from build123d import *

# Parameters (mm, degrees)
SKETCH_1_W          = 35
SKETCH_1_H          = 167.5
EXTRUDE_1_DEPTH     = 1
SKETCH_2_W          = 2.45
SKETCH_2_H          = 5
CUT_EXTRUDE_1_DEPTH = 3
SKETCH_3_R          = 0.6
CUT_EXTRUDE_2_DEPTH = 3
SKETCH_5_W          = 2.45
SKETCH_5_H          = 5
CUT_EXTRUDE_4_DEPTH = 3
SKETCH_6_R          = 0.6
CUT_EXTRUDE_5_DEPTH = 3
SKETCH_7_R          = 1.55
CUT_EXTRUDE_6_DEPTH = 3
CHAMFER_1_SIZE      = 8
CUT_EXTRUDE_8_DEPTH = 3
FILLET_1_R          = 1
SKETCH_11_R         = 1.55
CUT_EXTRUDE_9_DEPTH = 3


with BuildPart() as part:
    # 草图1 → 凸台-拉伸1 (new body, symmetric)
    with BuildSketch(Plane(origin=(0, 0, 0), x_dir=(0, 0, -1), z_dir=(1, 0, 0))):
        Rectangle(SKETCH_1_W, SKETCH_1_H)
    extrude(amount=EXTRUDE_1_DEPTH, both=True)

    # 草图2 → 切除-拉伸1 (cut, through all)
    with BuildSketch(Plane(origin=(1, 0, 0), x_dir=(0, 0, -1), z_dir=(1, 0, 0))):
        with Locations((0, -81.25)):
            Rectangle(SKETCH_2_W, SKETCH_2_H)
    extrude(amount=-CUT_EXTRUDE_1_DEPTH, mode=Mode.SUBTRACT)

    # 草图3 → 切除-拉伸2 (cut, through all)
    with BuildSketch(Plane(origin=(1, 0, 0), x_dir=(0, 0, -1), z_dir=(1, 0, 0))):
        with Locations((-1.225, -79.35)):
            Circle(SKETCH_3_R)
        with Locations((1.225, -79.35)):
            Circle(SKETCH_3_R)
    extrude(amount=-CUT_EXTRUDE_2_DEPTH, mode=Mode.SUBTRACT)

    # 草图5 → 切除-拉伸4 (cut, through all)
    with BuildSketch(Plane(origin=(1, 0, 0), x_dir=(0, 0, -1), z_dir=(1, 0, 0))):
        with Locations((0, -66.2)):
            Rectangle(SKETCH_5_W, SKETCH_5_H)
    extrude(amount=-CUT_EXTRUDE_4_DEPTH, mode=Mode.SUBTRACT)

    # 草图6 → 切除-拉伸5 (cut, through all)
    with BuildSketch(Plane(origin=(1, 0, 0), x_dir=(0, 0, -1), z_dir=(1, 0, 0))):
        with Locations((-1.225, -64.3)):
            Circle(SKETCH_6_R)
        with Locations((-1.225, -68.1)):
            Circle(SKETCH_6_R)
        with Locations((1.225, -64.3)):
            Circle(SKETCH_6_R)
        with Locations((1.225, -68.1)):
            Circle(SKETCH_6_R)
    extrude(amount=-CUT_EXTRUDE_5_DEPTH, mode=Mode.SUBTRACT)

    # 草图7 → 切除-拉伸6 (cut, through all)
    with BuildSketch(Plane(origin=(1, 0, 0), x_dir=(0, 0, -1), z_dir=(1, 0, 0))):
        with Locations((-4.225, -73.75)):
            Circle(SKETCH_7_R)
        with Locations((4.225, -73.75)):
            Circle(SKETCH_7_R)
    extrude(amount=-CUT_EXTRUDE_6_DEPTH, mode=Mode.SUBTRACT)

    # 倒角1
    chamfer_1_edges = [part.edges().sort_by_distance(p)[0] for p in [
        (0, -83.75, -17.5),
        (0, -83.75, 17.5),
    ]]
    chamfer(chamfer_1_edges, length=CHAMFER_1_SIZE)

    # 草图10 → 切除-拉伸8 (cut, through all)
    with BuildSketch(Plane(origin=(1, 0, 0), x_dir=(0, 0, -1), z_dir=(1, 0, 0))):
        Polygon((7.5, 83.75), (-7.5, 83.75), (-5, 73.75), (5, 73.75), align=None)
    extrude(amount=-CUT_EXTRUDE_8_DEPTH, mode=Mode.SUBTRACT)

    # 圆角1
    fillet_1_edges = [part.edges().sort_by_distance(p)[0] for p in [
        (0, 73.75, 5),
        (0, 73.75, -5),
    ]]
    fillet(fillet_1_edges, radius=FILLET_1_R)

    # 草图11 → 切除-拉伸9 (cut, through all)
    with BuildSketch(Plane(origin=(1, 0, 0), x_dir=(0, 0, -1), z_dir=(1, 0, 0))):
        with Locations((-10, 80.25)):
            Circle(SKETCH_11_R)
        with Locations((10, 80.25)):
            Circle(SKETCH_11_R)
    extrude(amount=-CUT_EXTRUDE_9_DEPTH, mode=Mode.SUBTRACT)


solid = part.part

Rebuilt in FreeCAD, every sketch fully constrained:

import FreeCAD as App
import Part
import Sketcher

V = App.Vector
Q = App.Units.Quantity


def edges_at(feature, points):
    """Names of the edges that pass closest to the given points."""
    edges = feature.Shape.Edges
    near = lambda p: min(range(len(edges)), key=lambda i: edges[i].distToShape(Part.Vertex(*p))[0])
    return sorted({f"Edge{near(p) + 1}" for p in points})

doc = App.newDocument("Part")
body = doc.addObject("PartDesign::Body", "Body")

# Sketch on YZ plane
sketch1 = body.newObject("Sketcher::SketchObject", "Sketch")
sketch1.AttachmentSupport = (doc.getObject("YZ_Plane"), [""])
sketch1.MapMode = "FlatFace"
sketch1.addGeometry([
    Part.LineSegment(V(83.75, 17.5, 0), V(-83.75, 17.5, 0)),
    Part.LineSegment(V(-83.75, 17.5, 0), V(-83.75, -17.5, 0)),
    Part.LineSegment(V(-83.75, -17.5, 0), V(83.75, -17.5, 0)),
    Part.LineSegment(V(83.75, -17.5, 0), V(83.75, 17.5, 0)),
], False)
sketch1.addConstraint([
    Sketcher.Constraint("Coincident", 0, 2, 1, 1),
    Sketcher.Constraint("Coincident", 1, 2, 2, 1),
    Sketcher.Constraint("Coincident", 2, 2, 3, 1),
    Sketcher.Constraint("Coincident", 3, 2, 0, 1),
    Sketcher.Constraint("Horizontal", 0),
    Sketcher.Constraint("Vertical", 1),
    Sketcher.Constraint("Horizontal", 2),
    Sketcher.Constraint("Vertical", 3),
    Sketcher.Constraint("Symmetric", 0, 2, 2, 2, -1, 1),
    Sketcher.Constraint("DistanceY", 1, 2, 1, 1, Q("35 mm")),
    Sketcher.Constraint("DistanceX", 0, 2, 0, 1, Q("167.5 mm")),
])
pad1 = body.newObject("PartDesign::Pad", "Pad")
pad1.Profile = sketch1
pad1.Length = 2
pad1.Midplane = True

# Sketch on YZ plane
sketch2 = body.newObject("Sketcher::SketchObject", "Sketch001")
sketch2.AttachmentSupport = (doc.getObject("YZ_Plane"), [""])
sketch2.MapMode = "FlatFace"
sketch2.AttachmentOffset = App.Placement(V(0, 0, 1), App.Rotation())
sketch2.addGeometry([
    Part.LineSegment(V(-78.75, 1.225, 0), V(-83.75, 1.225, 0)),
    Part.LineSegment(V(-83.75, 1.225, 0), V(-83.75, -1.225, 0)),
    Part.LineSegment(V(-83.75, -1.225, 0), V(-78.75, -1.225, 0)),
    Part.LineSegment(V(-78.75, -1.225, 0), V(-78.75, 1.225, 0)),
], False)
sketch2.addConstraint([
    Sketcher.Constraint("Coincident", 0, 2, 1, 1),
    Sketcher.Constraint("Coincident", 1, 2, 2, 1),
    Sketcher.Constraint("Coincident", 2, 2, 3, 1),
    Sketcher.Constraint("Coincident", 3, 2, 0, 1),
    Sketcher.Constraint("Horizontal", 0),
    Sketcher.Constraint("Vertical", 1),
    Sketcher.Constraint("Horizontal", 2),
    Sketcher.Constraint("Vertical", 3),
    Sketcher.Constraint("DistanceX", 0, 2, 0, 1, Q("5 mm")),
    Sketcher.Constraint("DistanceY", 1, 2, 1, 1, Q("2.45 mm")),
    Sketcher.Constraint("DistanceX", 0, 2, -1, 1, Q("83.75 mm")),
    Sketcher.Constraint("DistanceY", -1, 1, 0, 2, Q("1.225 mm")),
])
pocket1 = body.newObject("PartDesign::Pocket", "Pocket")
pocket1.Profile = sketch2
pocket1.Type = "ThroughAll"

# Sketch on YZ plane
sketch3 = body.newObject("Sketcher::SketchObject", "Sketch002")
sketch3.AttachmentSupport = (doc.getObject("YZ_Plane"), [""])
sketch3.MapMode = "FlatFace"
sketch3.AttachmentOffset = App.Placement(V(0, 0, 1), App.Rotation())
sketch3.addGeometry([
    Part.Circle(V(-79.35, 1.225, 0), V(0, 0, 1), 0.6),
    Part.Circle(V(-79.35, -1.225, 0), V(0, 0, 1), 0.6),
], False)
sketch3.addConstraint([
    Sketcher.Constraint("Equal", 0, 1),
    Sketcher.Constraint("Symmetric", 0, 3, 1, 3, -1),
    Sketcher.Constraint("Diameter", 0, Q("1.2 mm")),
    Sketcher.Constraint("DistanceX", 0, 3, -1, 1, Q("79.35 mm")),
    Sketcher.Constraint("DistanceY", 1, 3, 0, 3, Q("2.45 mm")),
])
pocket2 = body.newObject("PartDesign::Pocket", "Pocket001")
pocket2.Profile = sketch3
pocket2.Type = "ThroughAll"

# Sketch on YZ plane
sketch4 = body.newObject("Sketcher::SketchObject", "Sketch003")
sketch4.AttachmentSupport = (doc.getObject("YZ_Plane"), [""])
sketch4.MapMode = "FlatFace"
sketch4.AttachmentOffset = App.Placement(V(0, 0, 1), App.Rotation())
sketch4.addGeometry([
    Part.LineSegment(V(-63.7, 1.225, 0), V(-68.7, 1.225, 0)),
    Part.LineSegment(V(-68.7, 1.225, 0), V(-68.7, -1.225, 0)),
    Part.LineSegment(V(-68.7, -1.225, 0), V(-63.7, -1.225, 0)),
    Part.LineSegment(V(-63.7, -1.225, 0), V(-63.7, 1.225, 0)),
], False)
sketch4.addConstraint([
    Sketcher.Constraint("Coincident", 0, 2, 1, 1),
    Sketcher.Constraint("Coincident", 1, 2, 2, 1),
    Sketcher.Constraint("Coincident", 2, 2, 3, 1),
    Sketcher.Constraint("Coincident", 3, 2, 0, 1),
    Sketcher.Constraint("Horizontal", 0),
    Sketcher.Constraint("Vertical", 1),
    Sketcher.Constraint("Horizontal", 2),
    Sketcher.Constraint("Vertical", 3),
    Sketcher.Constraint("DistanceX", 0, 2, 0, 1, Q("5 mm")),
    Sketcher.Constraint("DistanceY", 1, 2, 1, 1, Q("2.45 mm")),
    Sketcher.Constraint("DistanceX", 0, 2, -1, 1, Q("68.7 mm")),
    Sketcher.Constraint("DistanceY", -1, 1, 0, 2, Q("1.225 mm")),
])
pocket3 = body.newObject("PartDesign::Pocket", "Pocket002")
pocket3.Profile = sketch4
pocket3.Type = "ThroughAll"

# Sketch on YZ plane
sketch5 = body.newObject("Sketcher::SketchObject", "Sketch004")
sketch5.AttachmentSupport = (doc.getObject("YZ_Plane"), [""])
sketch5.MapMode = "FlatFace"
sketch5.AttachmentOffset = App.Placement(V(0, 0, 1), App.Rotation())
sketch5.addGeometry([
    Part.Circle(V(-64.3, 1.225, 0), V(0, 0, 1), 0.6),
    Part.Circle(V(-68.1, 1.225, 0), V(0, 0, 1), 0.6),
    Part.Circle(V(-64.3, -1.225, 0), V(0, 0, 1), 0.6),
    Part.Circle(V(-68.1, -1.225, 0), V(0, 0, 1), 0.6),
], False)
sketch5.addConstraint([
    Sketcher.Constraint("Equal", 0, 1),
    Sketcher.Constraint("Equal", 1, 2),
    Sketcher.Constraint("Equal", 2, 3),
    Sketcher.Constraint("Symmetric", 0, 3, 2, 3, -1),
    Sketcher.Constraint("Symmetric", 1, 3, 3, 3, -1),
    Sketcher.Constraint("Horizontal", 0, 3, 1, 3),
    Sketcher.Constraint("Diameter", 0, Q("1.2 mm")),
    Sketcher.Constraint("DistanceX", 0, 3, -1, 1, Q("64.3 mm")),
    Sketcher.Constraint("DistanceX", 1, 3, -1, 1, Q("68.1 mm")),
    Sketcher.Constraint("DistanceY", 2, 3, 0, 3, Q("2.45 mm")),
])
pocket4 = body.newObject("PartDesign::Pocket", "Pocket003")
pocket4.Profile = sketch5
pocket4.Type = "ThroughAll"

# Sketch on YZ plane
sketch6 = body.newObject("Sketcher::SketchObject", "Sketch005")
sketch6.AttachmentSupport = (doc.getObject("YZ_Plane"), [""])
sketch6.MapMode = "FlatFace"
sketch6.AttachmentOffset = App.Placement(V(0, 0, 1), App.Rotation())
sketch6.addGeometry([
    Part.Circle(V(-73.75, 4.225, 0), V(0, 0, 1), 1.55),
    Part.Circle(V(-73.75, -4.225, 0), V(0, 0, 1), 1.55),
], False)
sketch6.addConstraint([
    Sketcher.Constraint("Equal", 0, 1),
    Sketcher.Constraint("Symmetric", 0, 3, 1, 3, -1),
    Sketcher.Constraint("Diameter", 0, Q("3.1 mm")),
    Sketcher.Constraint("DistanceX", 0, 3, -1, 1, Q("73.75 mm")),
    Sketcher.Constraint("DistanceY", 1, 3, 0, 3, Q("8.45 mm")),
])
pocket5 = body.newObject("PartDesign::Pocket", "Pocket004")
pocket5.Profile = sketch6
pocket5.Type = "ThroughAll"
doc.recompute()

chamfer = body.newObject("PartDesign::Chamfer", "Chamfer")
chamfer.Base = (pocket5, edges_at(pocket5, [(0, -83.75, -17.5), (0, -83.75, 17.5)]))
chamfer.Size = 8

# Sketch on YZ plane
sketch7 = body.newObject("Sketcher::SketchObject", "Sketch006")
sketch7.AttachmentSupport = (doc.getObject("YZ_Plane"), [""])
sketch7.MapMode = "FlatFace"
sketch7.AttachmentOffset = App.Placement(V(0, 0, 1), App.Rotation())
sketch7.addGeometry([
    Part.LineSegment(V(83.75, -7.5, 0), V(83.75, 7.5, 0)),
    Part.LineSegment(V(83.75, 7.5, 0), V(73.75, 5, 0)),
    Part.LineSegment(V(73.75, 5, 0), V(73.75, -5, 0)),
    Part.LineSegment(V(73.75, -5, 0), V(83.75, -7.5, 0)),
], False)
sketch7.addConstraint([
    Sketcher.Constraint("Coincident", 0, 2, 1, 1),
    Sketcher.Constraint("Coincident", 1, 2, 2, 1),
    Sketcher.Constraint("Coincident", 2, 2, 3, 1),
    Sketcher.Constraint("Coincident", 3, 2, 0, 1),
    Sketcher.Constraint("Vertical", 0),
    Sketcher.Constraint("Vertical", 2),
    Sketcher.Constraint("Equal", 1, 3),
    Sketcher.Constraint("DistanceY", 0, 1, 0, 2, Q("15 mm")),
    Sketcher.Constraint("DistanceY", 2, 2, 2, 1, Q("10 mm")),
    Sketcher.Constraint("DistanceY", -1, 1, 1, 2, Q("5 mm")),
    Sketcher.Constraint("DistanceX", 1, 2, 0, 2, Q("10 mm")),
    Sketcher.Constraint("DistanceX", -1, 1, 0, 2, Q("83.75 mm")),
])
pocket6 = body.newObject("PartDesign::Pocket", "Pocket005")
pocket6.Profile = sketch7
pocket6.Type = "ThroughAll"
doc.recompute()

fillet = body.newObject("PartDesign::Fillet", "Fillet")
fillet.Base = (pocket6, edges_at(pocket6, [(0, 73.75, 5), (0, 73.75, -5)]))
fillet.Radius = 1

# Sketch on YZ plane
sketch8 = body.newObject("Sketcher::SketchObject", "Sketch007")
sketch8.AttachmentSupport = (doc.getObject("YZ_Plane"), [""])
sketch8.MapMode = "FlatFace"
sketch8.AttachmentOffset = App.Placement(V(0, 0, 1), App.Rotation())
sketch8.addGeometry([
    Part.Circle(V(80.25, 10, 0), V(0, 0, 1), 1.55),
    Part.Circle(V(80.25, -10, 0), V(0, 0, 1), 1.55),
], False)
sketch8.addConstraint([
    Sketcher.Constraint("Equal", 0, 1),
    Sketcher.Constraint("Symmetric", 0, 3, 1, 3, -1),
    Sketcher.Constraint("Diameter", 0, Q("3.1 mm")),
    Sketcher.Constraint("DistanceY", -1, 1, 0, 3, Q("10 mm")),
    Sketcher.Constraint("DistanceX", -1, 1, 0, 3, Q("80.25 mm")),
])
pocket7 = body.newObject("PartDesign::Pocket", "Pocket006")
pocket7.Profile = sketch8
pocket7.Type = "ThroughAll"

doc.recompute()
